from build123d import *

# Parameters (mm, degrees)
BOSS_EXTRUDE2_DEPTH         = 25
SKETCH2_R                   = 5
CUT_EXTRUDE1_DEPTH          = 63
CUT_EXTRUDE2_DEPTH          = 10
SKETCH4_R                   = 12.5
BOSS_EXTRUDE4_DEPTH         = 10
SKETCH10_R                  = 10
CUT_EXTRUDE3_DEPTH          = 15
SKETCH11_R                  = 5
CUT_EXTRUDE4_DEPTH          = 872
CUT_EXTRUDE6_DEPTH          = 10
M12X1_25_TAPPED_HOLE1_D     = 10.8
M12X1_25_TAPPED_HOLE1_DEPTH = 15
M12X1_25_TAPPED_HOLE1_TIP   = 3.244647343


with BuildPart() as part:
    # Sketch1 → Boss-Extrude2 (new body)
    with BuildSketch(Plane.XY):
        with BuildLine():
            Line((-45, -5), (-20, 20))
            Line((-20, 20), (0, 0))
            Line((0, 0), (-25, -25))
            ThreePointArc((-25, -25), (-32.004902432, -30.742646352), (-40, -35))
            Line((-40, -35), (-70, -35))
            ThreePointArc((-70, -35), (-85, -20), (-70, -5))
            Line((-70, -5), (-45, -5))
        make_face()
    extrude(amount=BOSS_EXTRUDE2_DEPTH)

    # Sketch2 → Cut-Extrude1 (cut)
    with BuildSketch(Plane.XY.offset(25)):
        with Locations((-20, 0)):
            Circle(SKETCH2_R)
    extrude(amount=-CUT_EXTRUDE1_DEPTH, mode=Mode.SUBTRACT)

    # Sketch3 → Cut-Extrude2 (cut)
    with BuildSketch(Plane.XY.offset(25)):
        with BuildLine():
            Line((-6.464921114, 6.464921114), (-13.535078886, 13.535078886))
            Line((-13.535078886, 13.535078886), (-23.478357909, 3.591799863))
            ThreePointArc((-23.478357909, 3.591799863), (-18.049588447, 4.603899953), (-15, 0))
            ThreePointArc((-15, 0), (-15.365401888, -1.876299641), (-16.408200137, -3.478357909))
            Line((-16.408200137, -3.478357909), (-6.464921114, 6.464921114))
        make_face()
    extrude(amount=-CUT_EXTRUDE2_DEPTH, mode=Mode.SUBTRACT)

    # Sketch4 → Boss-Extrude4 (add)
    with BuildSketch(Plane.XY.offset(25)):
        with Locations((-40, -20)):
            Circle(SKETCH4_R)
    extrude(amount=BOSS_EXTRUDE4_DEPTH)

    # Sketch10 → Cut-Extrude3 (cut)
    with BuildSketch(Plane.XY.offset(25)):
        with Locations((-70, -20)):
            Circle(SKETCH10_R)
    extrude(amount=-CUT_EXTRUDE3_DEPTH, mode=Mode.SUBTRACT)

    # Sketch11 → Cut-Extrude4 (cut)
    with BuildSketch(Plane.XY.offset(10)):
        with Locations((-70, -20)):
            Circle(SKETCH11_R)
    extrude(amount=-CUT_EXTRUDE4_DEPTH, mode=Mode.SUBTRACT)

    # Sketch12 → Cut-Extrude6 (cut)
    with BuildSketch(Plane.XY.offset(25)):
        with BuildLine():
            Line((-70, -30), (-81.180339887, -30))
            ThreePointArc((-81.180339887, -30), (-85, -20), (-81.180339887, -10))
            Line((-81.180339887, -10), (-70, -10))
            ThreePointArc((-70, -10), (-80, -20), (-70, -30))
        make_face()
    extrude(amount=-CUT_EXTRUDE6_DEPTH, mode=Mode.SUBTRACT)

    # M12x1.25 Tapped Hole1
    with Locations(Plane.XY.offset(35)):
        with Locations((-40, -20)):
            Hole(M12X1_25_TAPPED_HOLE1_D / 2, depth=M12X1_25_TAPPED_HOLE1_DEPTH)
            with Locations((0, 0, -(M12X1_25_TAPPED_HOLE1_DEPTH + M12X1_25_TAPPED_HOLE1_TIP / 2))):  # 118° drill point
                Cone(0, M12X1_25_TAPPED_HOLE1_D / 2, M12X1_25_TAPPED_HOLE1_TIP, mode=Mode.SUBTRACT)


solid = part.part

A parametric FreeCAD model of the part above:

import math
import FreeCAD as App
import Part
import Sketcher
Q = App.Units.Quantity

doc = App.newDocument("Part")
body = doc.addObject("PartDesign::Body", "Body")

# Sketch on XY plane
sketch1 = body.newObject("Sketcher::SketchObject", "Sketch")
sketch1.AttachmentSupport = (doc.getObject("XY_Plane"), [""])
sketch1.MapMode = "FlatFace"
sketch1.addGeometry([
    Part.LineSegment(App.Vector(-20, 20, 0), App.Vector(-45, -5, 0)),  # 0
    Part.LineSegment(App.Vector(-45, -5, 0), App.Vector(-70, -5, 0)),  # 1
    Part.ArcOfCircle(Part.Circle(App.Vector(-70, -20, 0), App.Vector(0, 0, 1), 15), math.radians(90), math.radians(270)),  # 2
    Part.LineSegment(App.Vector(-70, -35, 0), App.Vector(-40, -35, 0)),  # 3
    Part.ArcOfCircle(Part.Circle(App.Vector(-57, 7, 0), App.Vector(0, 0, 1), 46), math.radians(-68), math.radians(-45)),  # 4
    Part.LineSegment(App.Vector(-25, -25, 0), App.Vector(0, 0, 0)),  # 5
    Part.LineSegment(App.Vector(0, 0, 0), App.Vector(-20, 20, 0)),  # 6
], False)
sketch1.addConstraint([
    Sketcher.Constraint("Coincident", 0, 2, 1, 1),
    Sketcher.Constraint("Tangent", 1, 2, 2, 1),
    Sketcher.Constraint("Tangent", 2, 2, 3, 1),
    Sketcher.Constraint("Coincident", 3, 2, 4, 1),
    Sketcher.Constraint("Tangent", 4, 2, 5, 1),
    Sketcher.Constraint("Coincident", 5, 2, 6, 1),
    Sketcher.Constraint("Coincident", 6, 2, 0, 1),
    Sketcher.Constraint("Horizontal", 1),
    Sketcher.Constraint("Horizontal", 3),
    Sketcher.Constraint("Coincident", 5, 2, -1, 1),
    Sketcher.Constraint("Parallel", 0, 5),
    Sketcher.Constraint("Perpendicular", 5, 6),
    Sketcher.Constraint("Equal", 0, 5),
    Sketcher.Constraint("Radius", 2, Q("15 mm")),
    Sketcher.Constraint("DistanceX", 1, 2, 1, 1, Q("25 mm")),
    Sketcher.Constraint("DistanceX", 3, 1, 3, 2, Q("30 mm")),
    Sketcher.Constraint("Angle", 0, Q("-135 deg")),
    Sketcher.Constraint("DistanceX", 2, 3, -1, 1, Q("70 mm")),
    Sketcher.Constraint("DistanceY", 2, 3, -1, 1, Q("20 mm")),
])
pad1 = body.newObject("PartDesign::Pad", "Pad")
pad1.Profile = sketch1
pad1.Length = 25

# Sketch on XY plane
sketch2 = body.newObject("Sketcher::SketchObject", "Sketch001")
sketch2.AttachmentSupport = (doc.getObject("XY_Plane"), [""])
sketch2.MapMode = "FlatFace"
sketch2.AttachmentOffset = App.Placement(App.Vector(0, 0, 25), App.Rotation())
sketch2.addGeometry(Part.Circle(App.Vector(-20, 0, 0), App.Vector(0, 0, 1), 5), False)
sketch2.addConstraint([
    Sketcher.Constraint("PointOnObject", 0, 3, -1),
    Sketcher.Constraint("Diameter", 0, Q("10 mm")),
    Sketcher.Constraint("DistanceX", 0, 3, -1, 1, Q("20 mm")),
])
pocket1 = body.newObject("PartDesign::Pocket", "Pocket")
pocket1.Profile = sketch2
pocket1.Length = 63

# Sketch on XY plane
sketch3 = body.newObject("Sketcher::SketchObject", "Sketch002")
sketch3.AttachmentSupport = (doc.getObject("XY_Plane"), [""])
sketch3.MapMode = "FlatFace"
sketch3.AttachmentOffset = App.Placement(App.Vector(0, 0, 25), App.Rotation())
sketch3.addGeometry([
    Part.LineSegment(App.Vector(-6.5, 6.5, 0), App.Vector(-13.5, 13.5, 0)),  # 0
    Part.LineSegment(App.Vector(-13.5, 13.5, 0), App.Vector(-23.5, 3.6, 0)),  # 1
    Part.ArcOfCircle(Part.Circle(App.Vector(-20, 0, 0), App.Vector(0, 0, 1), 5), math.radians(0), math.radians(134)),  # 2
    Part.ArcOfCircle(Part.Circle(App.Vector(-20, 0, 0), App.Vector(0, 0, 1), 5), math.radians(-44), math.radians(0)),  # 3
    Part.LineSegment(App.Vector(-16.4, -3.5, 0), App.Vector(-6.5, 6.5, 0)),  # 4
], False)
sketch3.addConstraint([
    Sketcher.Constraint("Coincident", 0, 2, 1, 1),
    Sketcher.Constraint("Coincident", 1, 2, 2, 2),
    Sketcher.Constraint("Tangent", 2, 1, 3, 2),
    Sketcher.Constraint("Coincident", 3, 1, 4, 1),
    Sketcher.Constraint("Coincident", 4, 2, 0, 1),
    Sketcher.Constraint("Equal", 2, 3),
    Sketcher.Constraint("PointOnObject", 2, 3, -1),
    Sketcher.Constraint("PointOnObject", 2, 1, -1),
    Sketcher.Constraint("Perpendicular", 0, 1),
    Sketcher.Constraint("Parallel", 1, 4),
    Sketcher.Constraint("Equal", 1, 4),
    Sketcher.Constraint("Radius", 2, Q("5 mm")),
    Sketcher.Constraint("Angle", 0, Q("135 deg")),
    Sketcher.Constraint("DistanceX", 2, 3, -1, 1, Q("20 mm")),
    Sketcher.Constraint("DistanceY", -1, 1, 1, 2, Q("3.5918 mm")),
    Sketcher.Constraint("Distance", 1, Q("14.06192 mm")),
])
pocket2 = body.newObject("PartDesign::Pocket", "Pocket001")
pocket2.Profile = sketch3
pocket2.Length = 10

# Sketch on XY plane
sketch4 = body.newObject("Sketcher::SketchObject", "Sketch003")
sketch4.AttachmentSupport = (doc.getObject("XY_Plane"), [""])
sketch4.MapMode = "FlatFace"
sketch4.AttachmentOffset = App.Placement(App.Vector(0, 0, 25), App.Rotation())
sketch4.addGeometry(Part.Circle(App.Vector(-40, -20, 0), App.Vector(0, 0, 1), 12), False)
sketch4.addConstraint([
    Sketcher.Constraint("Diameter", 0, Q("25 mm")),
    Sketcher.Constraint("DistanceX", 0, 3, -1, 1, Q("40 mm")),
    Sketcher.Constraint("DistanceY", 0, 3, -1, 1, Q("20 mm")),
])
pad2 = body.newObject("PartDesign::Pad", "Pad001")
pad2.Profile = sketch4
pad2.Length = 10

# Sketch on XY plane
sketch5 = body.newObject("Sketcher::SketchObject", "Sketch004")
sketch5.AttachmentSupport = (doc.getObject("XY_Plane"), [""])
sketch5.MapMode = "FlatFace"
sketch5.AttachmentOffset = App.Placement(App.Vector(0, 0, 25), App.Rotation())
sketch5.addGeometry(Part.Circle(App.Vector(-70, -20, 0), App.Vector(0, 0, 1), 10), False)
sketch5.addConstraint([
    Sketcher.Constraint("Diameter", 0, Q("20 mm")),
    Sketcher.Constraint("DistanceX", 0, 3, -1, 1, Q("70 mm")),
    Sketcher.Constraint("DistanceY", 0, 3, -1, 1, Q("20 mm")),
])
pocket3 = body.newObject("PartDesign::Pocket", "Pocket002")
pocket3.Profile = sketch5
pocket3.Length = 15

# Sketch on XY plane
sketch6 = body.newObject("Sketcher::SketchObject", "Sketch005")
sketch6.AttachmentSupport = (doc.getObject("XY_Plane"), [""])
sketch6.MapMode = "FlatFace"
sketch6.AttachmentOffset = App.Placement(App.Vector(0, 0, 10), App.Rotation())
sketch6.addGeometry(Part.Circle(App.Vector(-70, -20, 0), App.Vector(0, 0, 1), 5), False)
sketch6.addConstraint([
    Sketcher.Constraint("Diameter", 0, Q("10 mm")),
    Sketcher.Constraint("DistanceX", 0, 3, -1, 1, Q("70 mm")),
    Sketcher.Constraint("DistanceY", 0, 3, -1, 1, Q("20 mm")),
])
pocket4 = body.newObject("PartDesign::Pocket", "Pocket003")
pocket4.Profile = sketch6
pocket4.Length = 872

# Sketch on XY plane
sketch7 = body.newObject("Sketcher::SketchObject", "Sketch006")
sketch7.AttachmentSupport = (doc.getObject("XY_Plane"), [""])
sketch7.MapMode = "FlatFace"
sketch7.AttachmentOffset = App.Placement(App.Vector(0, 0, 25), App.Rotation())
sketch7.addGeometry([
    Part.LineSegment(App.Vector(-81, -30, 0), App.Vector(-70, -30, 0)),
    Part.ArcOfCircle(Part.Circle(App.Vector(-70, -20, 0), App.Vector(0, 0, 1), 10), math.radians(90), math.radians(270)),
    Part.LineSegment(App.Vector(-70, -10, 0), App.Vector(-81, -10, 0)),
    Part.ArcOfCircle(Part.Circle(App.Vector(-70, -20, 0), App.Vector(0, 0, 1), 15), math.radians(138), math.radians(222)),
], False)
sketch7.addConstraint([
    Sketcher.Constraint("Tangent", 0, 2, 1, 2),
    Sketcher.Constraint("Tangent", 1, 1, 2, 1),
    Sketcher.Constraint("Coincident", 2, 2, 3, 1),
    Sketcher.Constraint("Coincident", 3, 2, 0, 1),
    Sketcher.Constraint("Horizontal", 0),
    Sketcher.Constraint("Horizontal", 2),
    Sketcher.Constraint("Coincident", 3, 3, 1, 3),
    Sketcher.Constraint("Radius", 1, Q("10 mm")),
    Sketcher.Constraint("Radius", 3, Q("15 mm")),
    Sketcher.Constraint("DistanceX", 1, 3, -1, 1, Q("70 mm")),
    Sketcher.Constraint("DistanceY", 1, 3, -1, 1, Q("20 mm")),
])
pocket5 = body.newObject("PartDesign::Pocket", "Pocket004")
pocket5.Profile = sketch7
pocket5.Length = 10

# Sketch on XY plane
sketch8 = body.newObject("Sketcher::SketchObject", "Sketch007")
sketch8.AttachmentSupport = (doc.getObject("XY_Plane"), [""])
sketch8.MapMode = "FlatFace"
sketch8.AttachmentOffset = App.Placement(App.Vector(0, 0, 35), App.Rotation())
sketch8.addGeometry(Part.Circle(App.Vector(-40, -20, 0), App.Vector(0, 0, 1), 5), False)
sketch8.addConstraint([
    Sketcher.Constraint("Diameter", 0, Q("10.8 mm")),
    Sketcher.Constraint("DistanceX", 0, 3, -1, 1, Q("40 mm")),
    Sketcher.Constraint("DistanceY", 0, 3, -1, 1, Q("20 mm")),
])
doc.recompute()
hole = body.newObject("PartDesign::Hole", "Hole")
hole.Profile = sketch8
hole.ThreadType = "None"
hole.Diameter = 10.8
hole.DepthType = "Dimension"
hole.Depth = 15
hole.DrillPoint = "Angled"
hole.DrillPointAngle = 118

doc.recompute()
